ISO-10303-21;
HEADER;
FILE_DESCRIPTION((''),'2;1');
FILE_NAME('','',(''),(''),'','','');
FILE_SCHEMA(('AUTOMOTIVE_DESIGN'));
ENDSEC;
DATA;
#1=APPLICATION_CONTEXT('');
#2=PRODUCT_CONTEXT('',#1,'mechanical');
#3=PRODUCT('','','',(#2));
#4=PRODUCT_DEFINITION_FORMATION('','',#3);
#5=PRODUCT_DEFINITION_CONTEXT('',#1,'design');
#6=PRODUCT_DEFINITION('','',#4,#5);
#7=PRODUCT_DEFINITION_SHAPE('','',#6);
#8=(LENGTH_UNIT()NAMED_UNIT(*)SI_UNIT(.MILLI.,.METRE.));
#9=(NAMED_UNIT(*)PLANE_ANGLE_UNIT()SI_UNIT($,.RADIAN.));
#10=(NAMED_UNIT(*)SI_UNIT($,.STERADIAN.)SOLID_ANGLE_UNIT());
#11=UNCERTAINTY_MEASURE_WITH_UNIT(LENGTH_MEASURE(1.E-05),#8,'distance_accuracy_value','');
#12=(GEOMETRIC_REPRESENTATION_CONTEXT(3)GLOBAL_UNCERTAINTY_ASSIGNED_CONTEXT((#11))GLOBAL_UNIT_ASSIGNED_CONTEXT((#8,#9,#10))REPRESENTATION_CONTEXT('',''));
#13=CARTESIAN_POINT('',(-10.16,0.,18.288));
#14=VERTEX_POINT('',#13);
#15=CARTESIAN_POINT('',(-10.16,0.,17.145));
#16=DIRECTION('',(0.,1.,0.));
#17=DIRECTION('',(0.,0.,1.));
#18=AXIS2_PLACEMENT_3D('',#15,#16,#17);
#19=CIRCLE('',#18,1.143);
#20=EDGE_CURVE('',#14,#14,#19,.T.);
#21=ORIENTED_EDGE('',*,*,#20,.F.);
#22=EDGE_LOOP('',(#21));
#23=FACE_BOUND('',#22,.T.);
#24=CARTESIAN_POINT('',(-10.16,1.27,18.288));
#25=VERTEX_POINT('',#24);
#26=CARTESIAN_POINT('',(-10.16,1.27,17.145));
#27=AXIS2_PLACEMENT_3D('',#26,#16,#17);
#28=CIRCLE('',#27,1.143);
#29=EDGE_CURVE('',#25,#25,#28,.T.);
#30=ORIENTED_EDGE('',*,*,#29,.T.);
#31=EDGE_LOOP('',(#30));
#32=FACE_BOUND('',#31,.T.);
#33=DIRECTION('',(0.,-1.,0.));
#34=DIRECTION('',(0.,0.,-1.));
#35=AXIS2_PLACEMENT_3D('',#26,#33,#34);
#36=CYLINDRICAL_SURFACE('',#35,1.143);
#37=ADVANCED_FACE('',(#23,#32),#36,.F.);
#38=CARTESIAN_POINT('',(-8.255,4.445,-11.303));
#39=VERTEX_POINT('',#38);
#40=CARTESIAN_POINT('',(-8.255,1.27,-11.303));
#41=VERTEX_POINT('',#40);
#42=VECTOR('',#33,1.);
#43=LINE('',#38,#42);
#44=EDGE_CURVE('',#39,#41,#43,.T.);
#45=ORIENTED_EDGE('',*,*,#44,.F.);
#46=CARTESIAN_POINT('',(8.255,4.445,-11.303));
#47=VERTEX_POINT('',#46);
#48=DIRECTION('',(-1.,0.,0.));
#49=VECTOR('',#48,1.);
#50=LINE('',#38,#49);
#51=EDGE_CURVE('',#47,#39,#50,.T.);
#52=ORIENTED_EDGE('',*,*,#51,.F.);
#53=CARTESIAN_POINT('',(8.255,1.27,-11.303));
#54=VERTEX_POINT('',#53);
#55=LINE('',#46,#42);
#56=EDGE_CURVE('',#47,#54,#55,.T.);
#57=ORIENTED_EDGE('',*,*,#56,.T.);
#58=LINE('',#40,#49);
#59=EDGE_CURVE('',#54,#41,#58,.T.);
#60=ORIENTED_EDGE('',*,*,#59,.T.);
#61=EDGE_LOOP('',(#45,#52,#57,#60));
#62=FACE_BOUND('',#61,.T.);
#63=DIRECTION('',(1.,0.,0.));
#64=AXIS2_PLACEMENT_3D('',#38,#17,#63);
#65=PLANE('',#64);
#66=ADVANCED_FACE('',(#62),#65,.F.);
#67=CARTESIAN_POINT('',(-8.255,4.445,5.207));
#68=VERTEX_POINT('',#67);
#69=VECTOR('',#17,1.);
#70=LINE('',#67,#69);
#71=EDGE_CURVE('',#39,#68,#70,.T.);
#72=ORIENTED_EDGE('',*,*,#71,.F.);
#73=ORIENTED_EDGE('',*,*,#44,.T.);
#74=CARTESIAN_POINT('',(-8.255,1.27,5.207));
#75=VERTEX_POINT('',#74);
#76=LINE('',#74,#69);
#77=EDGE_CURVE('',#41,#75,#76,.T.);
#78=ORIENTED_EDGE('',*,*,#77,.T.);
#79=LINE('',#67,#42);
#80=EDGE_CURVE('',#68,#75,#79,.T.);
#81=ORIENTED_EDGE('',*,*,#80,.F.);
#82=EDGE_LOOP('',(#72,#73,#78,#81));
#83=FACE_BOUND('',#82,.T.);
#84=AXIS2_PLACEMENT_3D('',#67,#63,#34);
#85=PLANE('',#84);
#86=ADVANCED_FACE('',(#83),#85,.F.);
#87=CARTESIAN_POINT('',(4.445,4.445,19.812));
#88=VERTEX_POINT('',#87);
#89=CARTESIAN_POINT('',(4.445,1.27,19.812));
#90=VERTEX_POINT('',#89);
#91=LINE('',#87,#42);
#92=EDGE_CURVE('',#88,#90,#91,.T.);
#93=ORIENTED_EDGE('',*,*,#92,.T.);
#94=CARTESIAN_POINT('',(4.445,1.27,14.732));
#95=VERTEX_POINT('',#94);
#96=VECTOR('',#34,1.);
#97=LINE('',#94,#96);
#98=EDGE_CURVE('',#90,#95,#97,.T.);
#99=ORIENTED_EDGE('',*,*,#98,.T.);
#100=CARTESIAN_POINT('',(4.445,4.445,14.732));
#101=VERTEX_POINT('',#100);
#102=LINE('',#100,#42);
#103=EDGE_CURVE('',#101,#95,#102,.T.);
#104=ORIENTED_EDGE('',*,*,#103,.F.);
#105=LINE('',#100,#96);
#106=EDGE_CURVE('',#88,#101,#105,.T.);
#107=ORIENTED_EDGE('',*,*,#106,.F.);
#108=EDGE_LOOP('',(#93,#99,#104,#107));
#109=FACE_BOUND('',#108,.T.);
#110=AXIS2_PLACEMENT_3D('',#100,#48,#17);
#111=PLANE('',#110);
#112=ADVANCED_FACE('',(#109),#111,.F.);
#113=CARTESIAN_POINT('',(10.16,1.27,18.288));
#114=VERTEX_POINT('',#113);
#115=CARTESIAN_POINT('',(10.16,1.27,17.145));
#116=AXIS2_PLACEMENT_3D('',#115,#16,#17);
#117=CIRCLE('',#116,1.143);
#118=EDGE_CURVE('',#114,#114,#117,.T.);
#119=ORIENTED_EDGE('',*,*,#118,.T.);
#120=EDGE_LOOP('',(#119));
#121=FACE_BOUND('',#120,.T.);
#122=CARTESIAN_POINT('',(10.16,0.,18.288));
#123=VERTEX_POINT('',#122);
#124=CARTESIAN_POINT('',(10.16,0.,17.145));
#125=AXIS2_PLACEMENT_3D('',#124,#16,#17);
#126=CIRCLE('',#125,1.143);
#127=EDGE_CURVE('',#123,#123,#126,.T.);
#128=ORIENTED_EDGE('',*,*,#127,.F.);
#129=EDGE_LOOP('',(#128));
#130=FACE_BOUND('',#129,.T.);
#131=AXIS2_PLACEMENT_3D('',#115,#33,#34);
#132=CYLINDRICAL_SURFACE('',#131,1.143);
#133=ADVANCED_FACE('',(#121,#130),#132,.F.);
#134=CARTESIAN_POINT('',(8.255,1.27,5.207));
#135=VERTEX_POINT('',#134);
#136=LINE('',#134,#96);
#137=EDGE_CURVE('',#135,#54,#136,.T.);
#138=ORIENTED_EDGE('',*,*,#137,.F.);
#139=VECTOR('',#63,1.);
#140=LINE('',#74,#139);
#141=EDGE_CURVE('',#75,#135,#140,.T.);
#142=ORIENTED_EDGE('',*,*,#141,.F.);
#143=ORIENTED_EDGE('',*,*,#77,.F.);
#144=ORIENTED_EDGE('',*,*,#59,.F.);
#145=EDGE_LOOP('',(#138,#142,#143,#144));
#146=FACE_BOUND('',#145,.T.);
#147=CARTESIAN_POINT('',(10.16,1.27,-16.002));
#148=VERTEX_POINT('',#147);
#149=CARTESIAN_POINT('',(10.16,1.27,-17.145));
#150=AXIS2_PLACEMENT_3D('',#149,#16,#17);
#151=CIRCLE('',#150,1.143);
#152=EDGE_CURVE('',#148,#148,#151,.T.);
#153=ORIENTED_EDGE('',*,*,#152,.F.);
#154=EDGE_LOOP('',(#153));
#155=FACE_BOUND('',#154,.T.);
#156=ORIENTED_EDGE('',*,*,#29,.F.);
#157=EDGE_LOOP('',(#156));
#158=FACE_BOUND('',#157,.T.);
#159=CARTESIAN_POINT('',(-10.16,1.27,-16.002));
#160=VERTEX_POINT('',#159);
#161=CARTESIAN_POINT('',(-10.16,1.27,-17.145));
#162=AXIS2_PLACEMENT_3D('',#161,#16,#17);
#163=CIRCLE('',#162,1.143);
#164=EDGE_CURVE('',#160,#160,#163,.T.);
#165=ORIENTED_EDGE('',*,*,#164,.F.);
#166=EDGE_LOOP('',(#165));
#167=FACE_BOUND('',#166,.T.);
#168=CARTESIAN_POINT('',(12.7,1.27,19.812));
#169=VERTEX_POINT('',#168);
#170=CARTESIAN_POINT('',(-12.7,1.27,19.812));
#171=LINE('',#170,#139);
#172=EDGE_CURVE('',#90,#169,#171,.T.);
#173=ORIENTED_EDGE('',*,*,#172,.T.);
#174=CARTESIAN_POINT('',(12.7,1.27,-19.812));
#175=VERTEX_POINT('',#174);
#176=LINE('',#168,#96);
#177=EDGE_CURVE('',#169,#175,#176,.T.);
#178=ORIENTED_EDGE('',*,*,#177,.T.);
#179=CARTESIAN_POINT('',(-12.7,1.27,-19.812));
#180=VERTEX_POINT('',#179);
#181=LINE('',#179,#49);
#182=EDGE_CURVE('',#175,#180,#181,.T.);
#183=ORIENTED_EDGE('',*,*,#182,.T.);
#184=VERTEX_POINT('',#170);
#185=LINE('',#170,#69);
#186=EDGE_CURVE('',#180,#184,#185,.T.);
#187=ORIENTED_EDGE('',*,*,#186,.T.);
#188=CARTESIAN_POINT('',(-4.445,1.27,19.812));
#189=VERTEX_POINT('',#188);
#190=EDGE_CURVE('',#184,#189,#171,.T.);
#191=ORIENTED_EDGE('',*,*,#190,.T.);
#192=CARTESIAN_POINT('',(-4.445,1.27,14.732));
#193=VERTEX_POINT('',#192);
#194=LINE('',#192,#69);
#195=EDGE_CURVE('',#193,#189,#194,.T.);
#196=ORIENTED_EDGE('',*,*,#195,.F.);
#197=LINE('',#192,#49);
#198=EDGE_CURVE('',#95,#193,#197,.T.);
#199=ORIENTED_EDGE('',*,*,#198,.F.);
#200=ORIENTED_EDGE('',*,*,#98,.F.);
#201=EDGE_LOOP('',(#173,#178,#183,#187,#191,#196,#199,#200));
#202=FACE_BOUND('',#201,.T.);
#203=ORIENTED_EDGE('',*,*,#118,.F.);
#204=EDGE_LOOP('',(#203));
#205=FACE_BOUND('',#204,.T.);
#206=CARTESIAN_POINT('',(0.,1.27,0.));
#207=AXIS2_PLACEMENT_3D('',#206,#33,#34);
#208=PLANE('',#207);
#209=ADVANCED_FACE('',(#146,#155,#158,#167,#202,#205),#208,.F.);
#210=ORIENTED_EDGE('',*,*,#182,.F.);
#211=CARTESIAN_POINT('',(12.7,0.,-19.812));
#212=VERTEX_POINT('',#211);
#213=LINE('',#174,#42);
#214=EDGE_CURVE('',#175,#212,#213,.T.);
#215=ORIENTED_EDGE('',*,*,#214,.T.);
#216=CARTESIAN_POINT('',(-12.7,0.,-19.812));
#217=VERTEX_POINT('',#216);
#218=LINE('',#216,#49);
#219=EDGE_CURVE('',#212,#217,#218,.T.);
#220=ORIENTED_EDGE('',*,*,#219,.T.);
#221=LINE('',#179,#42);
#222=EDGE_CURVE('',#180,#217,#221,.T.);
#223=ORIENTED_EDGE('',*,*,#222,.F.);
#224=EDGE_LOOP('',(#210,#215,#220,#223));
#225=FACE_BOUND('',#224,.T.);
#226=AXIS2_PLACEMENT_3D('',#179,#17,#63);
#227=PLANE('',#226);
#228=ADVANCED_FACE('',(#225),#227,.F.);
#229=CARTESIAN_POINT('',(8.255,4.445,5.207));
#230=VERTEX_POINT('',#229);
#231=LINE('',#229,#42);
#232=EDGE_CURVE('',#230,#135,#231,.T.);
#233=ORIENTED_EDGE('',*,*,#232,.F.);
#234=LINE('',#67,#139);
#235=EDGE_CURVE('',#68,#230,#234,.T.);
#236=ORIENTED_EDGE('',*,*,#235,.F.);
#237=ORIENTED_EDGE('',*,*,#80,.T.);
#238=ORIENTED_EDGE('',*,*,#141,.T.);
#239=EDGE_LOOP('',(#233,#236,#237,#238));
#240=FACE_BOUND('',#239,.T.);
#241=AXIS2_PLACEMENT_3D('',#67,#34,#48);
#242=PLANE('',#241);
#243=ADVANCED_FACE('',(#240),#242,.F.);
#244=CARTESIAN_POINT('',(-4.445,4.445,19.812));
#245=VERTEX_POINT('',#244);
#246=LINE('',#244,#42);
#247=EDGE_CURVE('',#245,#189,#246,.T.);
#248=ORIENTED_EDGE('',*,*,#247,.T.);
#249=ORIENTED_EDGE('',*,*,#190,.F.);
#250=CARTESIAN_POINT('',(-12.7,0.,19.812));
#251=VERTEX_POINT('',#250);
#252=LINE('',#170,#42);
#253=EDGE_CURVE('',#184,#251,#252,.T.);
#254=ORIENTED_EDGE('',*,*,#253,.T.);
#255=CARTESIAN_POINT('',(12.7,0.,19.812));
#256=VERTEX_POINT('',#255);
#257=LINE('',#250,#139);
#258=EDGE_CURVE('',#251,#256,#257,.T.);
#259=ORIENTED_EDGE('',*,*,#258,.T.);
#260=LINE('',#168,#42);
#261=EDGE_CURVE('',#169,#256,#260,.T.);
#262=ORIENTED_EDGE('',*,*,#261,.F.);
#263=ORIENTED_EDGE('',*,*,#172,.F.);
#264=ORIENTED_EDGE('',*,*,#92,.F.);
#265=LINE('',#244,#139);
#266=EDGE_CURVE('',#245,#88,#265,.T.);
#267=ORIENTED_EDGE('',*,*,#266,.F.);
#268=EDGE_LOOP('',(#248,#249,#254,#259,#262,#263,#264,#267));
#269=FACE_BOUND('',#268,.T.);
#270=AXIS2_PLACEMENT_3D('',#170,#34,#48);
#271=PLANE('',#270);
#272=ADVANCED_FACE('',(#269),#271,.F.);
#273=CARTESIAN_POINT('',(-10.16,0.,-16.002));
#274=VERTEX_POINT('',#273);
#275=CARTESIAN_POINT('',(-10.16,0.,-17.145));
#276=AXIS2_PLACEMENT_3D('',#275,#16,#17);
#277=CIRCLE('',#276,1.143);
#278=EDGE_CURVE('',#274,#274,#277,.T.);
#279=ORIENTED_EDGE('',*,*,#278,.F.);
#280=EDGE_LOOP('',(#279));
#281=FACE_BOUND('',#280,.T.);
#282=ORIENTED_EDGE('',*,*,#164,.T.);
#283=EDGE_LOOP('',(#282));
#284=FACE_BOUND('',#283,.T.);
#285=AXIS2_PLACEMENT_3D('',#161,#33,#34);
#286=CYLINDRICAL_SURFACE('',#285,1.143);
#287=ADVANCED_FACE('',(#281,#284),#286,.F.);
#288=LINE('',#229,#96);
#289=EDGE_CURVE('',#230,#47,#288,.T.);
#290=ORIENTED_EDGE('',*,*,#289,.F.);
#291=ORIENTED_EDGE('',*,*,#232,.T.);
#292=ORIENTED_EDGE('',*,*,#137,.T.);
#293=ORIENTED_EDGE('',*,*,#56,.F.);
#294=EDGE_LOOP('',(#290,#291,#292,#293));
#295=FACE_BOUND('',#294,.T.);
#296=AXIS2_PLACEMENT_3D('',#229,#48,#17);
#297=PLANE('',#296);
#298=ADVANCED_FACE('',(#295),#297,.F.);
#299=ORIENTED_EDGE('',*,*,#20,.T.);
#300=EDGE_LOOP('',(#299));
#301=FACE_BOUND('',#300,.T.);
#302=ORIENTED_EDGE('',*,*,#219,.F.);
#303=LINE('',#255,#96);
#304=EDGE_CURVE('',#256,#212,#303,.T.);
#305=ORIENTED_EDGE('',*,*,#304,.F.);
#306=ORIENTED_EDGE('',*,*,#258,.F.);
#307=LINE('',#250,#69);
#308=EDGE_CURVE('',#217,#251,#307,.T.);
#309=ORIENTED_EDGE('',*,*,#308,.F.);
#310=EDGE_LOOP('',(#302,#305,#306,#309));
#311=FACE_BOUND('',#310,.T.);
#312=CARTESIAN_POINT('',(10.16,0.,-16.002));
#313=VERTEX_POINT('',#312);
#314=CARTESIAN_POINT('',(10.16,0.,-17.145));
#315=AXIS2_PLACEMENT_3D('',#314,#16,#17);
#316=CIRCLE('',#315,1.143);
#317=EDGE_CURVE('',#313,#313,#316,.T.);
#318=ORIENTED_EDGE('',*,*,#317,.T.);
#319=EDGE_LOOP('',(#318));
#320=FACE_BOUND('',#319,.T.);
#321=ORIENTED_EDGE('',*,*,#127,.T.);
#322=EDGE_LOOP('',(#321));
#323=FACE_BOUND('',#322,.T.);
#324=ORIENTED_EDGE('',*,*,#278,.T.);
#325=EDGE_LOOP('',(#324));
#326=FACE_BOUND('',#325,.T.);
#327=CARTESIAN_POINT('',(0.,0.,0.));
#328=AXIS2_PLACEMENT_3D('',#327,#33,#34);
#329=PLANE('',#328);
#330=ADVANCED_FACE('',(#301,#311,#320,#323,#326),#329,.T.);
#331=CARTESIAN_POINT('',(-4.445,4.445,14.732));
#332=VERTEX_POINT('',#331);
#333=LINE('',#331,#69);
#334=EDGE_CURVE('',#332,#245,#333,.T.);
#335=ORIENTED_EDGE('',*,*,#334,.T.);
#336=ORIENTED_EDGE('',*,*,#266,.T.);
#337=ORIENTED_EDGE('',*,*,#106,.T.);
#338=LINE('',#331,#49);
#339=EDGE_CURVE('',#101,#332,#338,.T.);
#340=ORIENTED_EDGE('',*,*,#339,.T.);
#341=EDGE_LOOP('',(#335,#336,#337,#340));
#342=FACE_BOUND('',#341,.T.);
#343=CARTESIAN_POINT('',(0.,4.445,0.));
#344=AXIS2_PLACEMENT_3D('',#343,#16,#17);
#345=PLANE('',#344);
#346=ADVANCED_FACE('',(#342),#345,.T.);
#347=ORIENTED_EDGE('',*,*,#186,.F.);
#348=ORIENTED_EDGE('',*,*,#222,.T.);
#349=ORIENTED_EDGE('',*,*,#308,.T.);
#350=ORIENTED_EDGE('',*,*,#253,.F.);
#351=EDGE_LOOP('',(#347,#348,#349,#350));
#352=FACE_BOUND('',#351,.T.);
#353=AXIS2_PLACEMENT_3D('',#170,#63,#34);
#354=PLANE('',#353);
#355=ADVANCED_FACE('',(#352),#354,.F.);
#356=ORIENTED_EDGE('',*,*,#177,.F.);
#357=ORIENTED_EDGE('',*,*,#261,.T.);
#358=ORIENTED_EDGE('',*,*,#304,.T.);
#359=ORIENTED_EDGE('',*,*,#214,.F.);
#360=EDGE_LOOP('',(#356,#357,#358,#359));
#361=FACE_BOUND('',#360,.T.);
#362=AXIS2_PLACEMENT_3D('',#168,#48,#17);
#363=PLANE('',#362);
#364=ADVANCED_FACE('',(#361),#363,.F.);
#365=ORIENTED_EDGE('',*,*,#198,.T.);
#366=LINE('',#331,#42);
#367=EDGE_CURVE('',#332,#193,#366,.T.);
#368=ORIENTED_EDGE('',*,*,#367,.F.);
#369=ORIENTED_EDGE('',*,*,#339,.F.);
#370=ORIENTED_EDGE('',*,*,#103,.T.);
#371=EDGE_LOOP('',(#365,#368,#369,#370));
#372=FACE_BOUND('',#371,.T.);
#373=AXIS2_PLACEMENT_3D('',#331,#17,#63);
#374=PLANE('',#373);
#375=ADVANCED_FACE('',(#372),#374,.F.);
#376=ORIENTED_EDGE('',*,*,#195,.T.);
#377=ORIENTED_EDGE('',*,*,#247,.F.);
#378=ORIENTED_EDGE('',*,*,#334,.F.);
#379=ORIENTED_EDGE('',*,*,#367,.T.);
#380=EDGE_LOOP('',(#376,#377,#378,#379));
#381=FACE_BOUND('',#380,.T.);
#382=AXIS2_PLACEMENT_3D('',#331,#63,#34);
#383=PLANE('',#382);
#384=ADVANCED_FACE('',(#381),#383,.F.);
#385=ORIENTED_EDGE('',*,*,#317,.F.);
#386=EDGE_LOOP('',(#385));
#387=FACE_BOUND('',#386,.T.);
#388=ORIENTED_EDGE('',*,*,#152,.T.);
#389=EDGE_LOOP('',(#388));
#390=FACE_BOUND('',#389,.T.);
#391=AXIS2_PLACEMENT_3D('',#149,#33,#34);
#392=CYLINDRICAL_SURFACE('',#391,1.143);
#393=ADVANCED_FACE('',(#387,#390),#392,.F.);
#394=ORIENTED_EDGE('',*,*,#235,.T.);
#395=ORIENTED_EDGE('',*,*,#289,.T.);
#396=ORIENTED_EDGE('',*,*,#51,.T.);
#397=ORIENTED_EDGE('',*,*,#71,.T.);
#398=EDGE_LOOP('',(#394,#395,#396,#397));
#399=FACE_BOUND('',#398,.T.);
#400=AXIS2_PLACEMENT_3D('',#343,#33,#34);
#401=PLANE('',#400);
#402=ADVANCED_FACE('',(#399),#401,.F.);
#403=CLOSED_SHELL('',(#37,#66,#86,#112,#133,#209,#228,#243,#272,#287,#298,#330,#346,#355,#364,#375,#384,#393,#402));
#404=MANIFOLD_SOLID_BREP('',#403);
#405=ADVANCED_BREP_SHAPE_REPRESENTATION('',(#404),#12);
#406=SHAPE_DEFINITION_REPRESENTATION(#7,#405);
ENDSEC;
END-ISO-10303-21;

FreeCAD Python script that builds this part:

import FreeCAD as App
import Part
import Sketcher
from FreeCAD import Vector
Q = App.Units.Quantity

doc = App.newDocument("Part")
params = doc.addObject("Spreadsheet::Sheet", "Params")
for row, (alias, value) in enumerate([
    ("sketch1_diameter", "0.09 in"),
    ("sketch1_width", "1 in"),
    ("sketch1_height", "1.56 in"),
    ("pad1_length", "0.05 in"),
    ("sketch2_width", "0.65 in"),
    ("pad2_length", "0.125 in"),
    ("sketch3_height", "0.2 in"),
    ("sketch3_width", "0.35 in"),
    ("pad3_length", "0.125 in"),
], start=1):
    params.set(f"A{row}", alias)
    params.set(f"B{row}", "=" + value)
    params.setAlias(f"B{row}", alias)

body = doc.addObject("PartDesign::Body", "Body")

# Sketch on XZ plane
sketch1 = body.newObject("Sketcher::SketchObject", "Sketch")
sketch1.AttachmentSupport = (doc.getObject("XZ_Plane"), [""])
sketch1.MapMode = "FlatFace"
sketch1.addGeometry([
    Part.LineSegment(Vector(-12.7, -19.8, 0), Vector(-12.7, 19.8, 0)),  # 0
    Part.LineSegment(Vector(-12.7, 19.8, 0), Vector(12.7, 19.8, 0)),  # 1
    Part.LineSegment(Vector(12.7, 19.8, 0), Vector(12.7, -19.8, 0)),  # 2
    Part.LineSegment(Vector(12.7, -19.8, 0), Vector(-12.7, -19.8, 0)),  # 3
    Part.Circle(Vector(-10.2, 17.1, 0), Vector(0, 0, 1), 1.1),  # 4
    Part.Circle(Vector(10.2, 17.1, 0), Vector(0, 0, 1), 1.1),  # 5
    Part.Circle(Vector(-10.2, -17.1, 0), Vector(0, 0, 1), 1.1),  # 6
    Part.Circle(Vector(10.2, -17.1, 0), Vector(0, 0, 1), 1.1),  # 7
], False)
sketch1.addConstraint([
    Sketcher.Constraint("Coincident", 0, 2, 1, 1),
    Sketcher.Constraint("Coincident", 1, 2, 2, 1),
    Sketcher.Constraint("Coincident", 2, 2, 3, 1),
    Sketcher.Constraint("Coincident", 3, 2, 0, 1),
    Sketcher.Constraint("Vertical", 0),
    Sketcher.Constraint("Horizontal", 1),
    Sketcher.Constraint("Vertical", 2),
    Sketcher.Constraint("Horizontal", 3),
    Sketcher.Constraint("Equal", 4, 5),
    Sketcher.Constraint("Equal", 5, 6),
    Sketcher.Constraint("Equal", 6, 7),
    Sketcher.Constraint("Symmetric", 5, 3, 6, 3, -1, 1),
    Sketcher.Constraint("Symmetric", 4, 3, 7, 3, -1, 1),
    Sketcher.Constraint("Symmetric", 0, 2, 2, 2, -1, 1),
    Sketcher.Constraint("Symmetric", 4, 3, 5, 3, -2),
    Sketcher.Constraint("Diameter", 4, Q("0.09 in")),
    Sketcher.Constraint("DistanceX", 1, 1, 1, 2, Q("1 in")),
    Sketcher.Constraint("DistanceY", 0, 1, 0, 2, Q("1.56 in")),
    Sketcher.Constraint("DistanceX", 4, 3, -1, 1, Q("0.4 in")),
    Sketcher.Constraint("DistanceY", 6, 3, 4, 3, Q("1.35 in")),
])
sketch1.setExpression("Constraints[15]", "Params.sketch1_diameter")
sketch1.setExpression("Constraints[16]", "Params.sketch1_width")
sketch1.setExpression("Constraints[17]", "Params.sketch1_height")
pad1 = body.newObject("PartDesign::Pad", "Pad")
pad1.Profile = sketch1
pad1.setExpression("Length", "Params.pad1_length")
pad1.Reversed = True

# Sketch on XZ plane
sketch2 = body.newObject("Sketcher::SketchObject", "Sketch001")
sketch2.AttachmentSupport = (doc.getObject("XZ_Plane"), [""])
sketch2.MapMode = "FlatFace"
sketch2.AttachmentOffset = App.Placement(Vector(0, 0, -0.05 * 25.4), App.Rotation())
sketch2.addGeometry([
    Part.LineSegment(Vector(-8, -11, 0), Vector(-8, 5, 0)),
    Part.LineSegment(Vector(-8, 5, 0), Vector(8, 5, 0)),
    Part.LineSegment(Vector(8, 5, 0), Vector(8, -11, 0)),
    Part.LineSegment(Vector(8, -11, 0), Vector(-8, -11, 0)),
], False)
sketch2.addConstraint([
    Sketcher.Constraint("Coincident", 0, 2, 1, 1),
    Sketcher.Constraint("Coincident", 1, 2, 2, 1),
    Sketcher.Constraint("Coincident", 2, 2, 3, 1),
    Sketcher.Constraint("Coincident", 3, 2, 0, 1),
    Sketcher.Constraint("Vertical", 0),
    Sketcher.Constraint("Horizontal", 1),
    Sketcher.Constraint("Vertical", 2),
    Sketcher.Constraint("Horizontal", 3),
    Sketcher.Constraint("Equal", 3, 0),
    Sketcher.Constraint("DistanceX", 1, 1, 1, 2, Q("0.65 in")),
    Sketcher.Constraint("DistanceX", 0, 2, -1, 1, Q("0.325 in")),
    Sketcher.Constraint("DistanceY", -1, 1, 0, 2, Q("0.205 in")),
])
sketch2.setExpression("Constraints[9]", "Params.sketch2_width")
pad2 = body.newObject("PartDesign::Pad", "Pad001")
pad2.Profile = sketch2
pad2.setExpression("Length", "Params.pad2_length")
pad2.Reversed = True

# Sketch on XZ plane
sketch3 = body.newObject("Sketcher::SketchObject", "Sketch002")
sketch3.AttachmentSupport = (doc.getObject("XZ_Plane"), [""])
sketch3.MapMode = "FlatFace"
sketch3.AttachmentOffset = App.Placement(Vector(0, 0, -0.05 * 25.4), App.Rotation())
sketch3.addGeometry([
    Part.LineSegment(Vector(-4, 15, 0), Vector(-4, 20, 0)),
    Part.LineSegment(Vector(-4, 20, 0), Vector(4, 20, 0)),
    Part.LineSegment(Vector(4, 20, 0), Vector(4, 15, 0)),
    Part.LineSegment(Vector(4, 15, 0), Vector(-4, 15, 0)),
], False)
sketch3.addConstraint([
    Sketcher.Constraint("Coincident", 0, 2, 1, 1),
    Sketcher.Constraint("Coincident", 1, 2, 2, 1),
    Sketcher.Constraint("Coincident", 2, 2, 3, 1),
    Sketcher.Constraint("Coincident", 3, 2, 0, 1),
    Sketcher.Constraint("Vertical", 0),
    Sketcher.Constraint("Horizontal", 1),
    Sketcher.Constraint("Vertical", 2),
    Sketcher.Constraint("Horizontal", 3),
    Sketcher.Constraint("DistanceY", 0, 1, 0, 2, Q("0.2 in")),
    Sketcher.Constraint("DistanceX", 1, 1, 1, 2, Q("0.35 in")),
    Sketcher.Constraint("DistanceY", -1, 1, 0, 2, Q("0.78 in")),
    Sketcher.Constraint("DistanceX", 0, 2, -1, 1, Q("0.175 in")),
])
sketch3.setExpression("Constraints[8]", "Params.sketch3_height")
sketch3.setExpression("Constraints[9]", "Params.sketch3_width")
pad3 = body.newObject("PartDesign::Pad", "Pad002")
pad3.Profile = sketch3
pad3.setExpression("Length", "Params.pad3_length")
pad3.Reversed = True

doc.recompute()
